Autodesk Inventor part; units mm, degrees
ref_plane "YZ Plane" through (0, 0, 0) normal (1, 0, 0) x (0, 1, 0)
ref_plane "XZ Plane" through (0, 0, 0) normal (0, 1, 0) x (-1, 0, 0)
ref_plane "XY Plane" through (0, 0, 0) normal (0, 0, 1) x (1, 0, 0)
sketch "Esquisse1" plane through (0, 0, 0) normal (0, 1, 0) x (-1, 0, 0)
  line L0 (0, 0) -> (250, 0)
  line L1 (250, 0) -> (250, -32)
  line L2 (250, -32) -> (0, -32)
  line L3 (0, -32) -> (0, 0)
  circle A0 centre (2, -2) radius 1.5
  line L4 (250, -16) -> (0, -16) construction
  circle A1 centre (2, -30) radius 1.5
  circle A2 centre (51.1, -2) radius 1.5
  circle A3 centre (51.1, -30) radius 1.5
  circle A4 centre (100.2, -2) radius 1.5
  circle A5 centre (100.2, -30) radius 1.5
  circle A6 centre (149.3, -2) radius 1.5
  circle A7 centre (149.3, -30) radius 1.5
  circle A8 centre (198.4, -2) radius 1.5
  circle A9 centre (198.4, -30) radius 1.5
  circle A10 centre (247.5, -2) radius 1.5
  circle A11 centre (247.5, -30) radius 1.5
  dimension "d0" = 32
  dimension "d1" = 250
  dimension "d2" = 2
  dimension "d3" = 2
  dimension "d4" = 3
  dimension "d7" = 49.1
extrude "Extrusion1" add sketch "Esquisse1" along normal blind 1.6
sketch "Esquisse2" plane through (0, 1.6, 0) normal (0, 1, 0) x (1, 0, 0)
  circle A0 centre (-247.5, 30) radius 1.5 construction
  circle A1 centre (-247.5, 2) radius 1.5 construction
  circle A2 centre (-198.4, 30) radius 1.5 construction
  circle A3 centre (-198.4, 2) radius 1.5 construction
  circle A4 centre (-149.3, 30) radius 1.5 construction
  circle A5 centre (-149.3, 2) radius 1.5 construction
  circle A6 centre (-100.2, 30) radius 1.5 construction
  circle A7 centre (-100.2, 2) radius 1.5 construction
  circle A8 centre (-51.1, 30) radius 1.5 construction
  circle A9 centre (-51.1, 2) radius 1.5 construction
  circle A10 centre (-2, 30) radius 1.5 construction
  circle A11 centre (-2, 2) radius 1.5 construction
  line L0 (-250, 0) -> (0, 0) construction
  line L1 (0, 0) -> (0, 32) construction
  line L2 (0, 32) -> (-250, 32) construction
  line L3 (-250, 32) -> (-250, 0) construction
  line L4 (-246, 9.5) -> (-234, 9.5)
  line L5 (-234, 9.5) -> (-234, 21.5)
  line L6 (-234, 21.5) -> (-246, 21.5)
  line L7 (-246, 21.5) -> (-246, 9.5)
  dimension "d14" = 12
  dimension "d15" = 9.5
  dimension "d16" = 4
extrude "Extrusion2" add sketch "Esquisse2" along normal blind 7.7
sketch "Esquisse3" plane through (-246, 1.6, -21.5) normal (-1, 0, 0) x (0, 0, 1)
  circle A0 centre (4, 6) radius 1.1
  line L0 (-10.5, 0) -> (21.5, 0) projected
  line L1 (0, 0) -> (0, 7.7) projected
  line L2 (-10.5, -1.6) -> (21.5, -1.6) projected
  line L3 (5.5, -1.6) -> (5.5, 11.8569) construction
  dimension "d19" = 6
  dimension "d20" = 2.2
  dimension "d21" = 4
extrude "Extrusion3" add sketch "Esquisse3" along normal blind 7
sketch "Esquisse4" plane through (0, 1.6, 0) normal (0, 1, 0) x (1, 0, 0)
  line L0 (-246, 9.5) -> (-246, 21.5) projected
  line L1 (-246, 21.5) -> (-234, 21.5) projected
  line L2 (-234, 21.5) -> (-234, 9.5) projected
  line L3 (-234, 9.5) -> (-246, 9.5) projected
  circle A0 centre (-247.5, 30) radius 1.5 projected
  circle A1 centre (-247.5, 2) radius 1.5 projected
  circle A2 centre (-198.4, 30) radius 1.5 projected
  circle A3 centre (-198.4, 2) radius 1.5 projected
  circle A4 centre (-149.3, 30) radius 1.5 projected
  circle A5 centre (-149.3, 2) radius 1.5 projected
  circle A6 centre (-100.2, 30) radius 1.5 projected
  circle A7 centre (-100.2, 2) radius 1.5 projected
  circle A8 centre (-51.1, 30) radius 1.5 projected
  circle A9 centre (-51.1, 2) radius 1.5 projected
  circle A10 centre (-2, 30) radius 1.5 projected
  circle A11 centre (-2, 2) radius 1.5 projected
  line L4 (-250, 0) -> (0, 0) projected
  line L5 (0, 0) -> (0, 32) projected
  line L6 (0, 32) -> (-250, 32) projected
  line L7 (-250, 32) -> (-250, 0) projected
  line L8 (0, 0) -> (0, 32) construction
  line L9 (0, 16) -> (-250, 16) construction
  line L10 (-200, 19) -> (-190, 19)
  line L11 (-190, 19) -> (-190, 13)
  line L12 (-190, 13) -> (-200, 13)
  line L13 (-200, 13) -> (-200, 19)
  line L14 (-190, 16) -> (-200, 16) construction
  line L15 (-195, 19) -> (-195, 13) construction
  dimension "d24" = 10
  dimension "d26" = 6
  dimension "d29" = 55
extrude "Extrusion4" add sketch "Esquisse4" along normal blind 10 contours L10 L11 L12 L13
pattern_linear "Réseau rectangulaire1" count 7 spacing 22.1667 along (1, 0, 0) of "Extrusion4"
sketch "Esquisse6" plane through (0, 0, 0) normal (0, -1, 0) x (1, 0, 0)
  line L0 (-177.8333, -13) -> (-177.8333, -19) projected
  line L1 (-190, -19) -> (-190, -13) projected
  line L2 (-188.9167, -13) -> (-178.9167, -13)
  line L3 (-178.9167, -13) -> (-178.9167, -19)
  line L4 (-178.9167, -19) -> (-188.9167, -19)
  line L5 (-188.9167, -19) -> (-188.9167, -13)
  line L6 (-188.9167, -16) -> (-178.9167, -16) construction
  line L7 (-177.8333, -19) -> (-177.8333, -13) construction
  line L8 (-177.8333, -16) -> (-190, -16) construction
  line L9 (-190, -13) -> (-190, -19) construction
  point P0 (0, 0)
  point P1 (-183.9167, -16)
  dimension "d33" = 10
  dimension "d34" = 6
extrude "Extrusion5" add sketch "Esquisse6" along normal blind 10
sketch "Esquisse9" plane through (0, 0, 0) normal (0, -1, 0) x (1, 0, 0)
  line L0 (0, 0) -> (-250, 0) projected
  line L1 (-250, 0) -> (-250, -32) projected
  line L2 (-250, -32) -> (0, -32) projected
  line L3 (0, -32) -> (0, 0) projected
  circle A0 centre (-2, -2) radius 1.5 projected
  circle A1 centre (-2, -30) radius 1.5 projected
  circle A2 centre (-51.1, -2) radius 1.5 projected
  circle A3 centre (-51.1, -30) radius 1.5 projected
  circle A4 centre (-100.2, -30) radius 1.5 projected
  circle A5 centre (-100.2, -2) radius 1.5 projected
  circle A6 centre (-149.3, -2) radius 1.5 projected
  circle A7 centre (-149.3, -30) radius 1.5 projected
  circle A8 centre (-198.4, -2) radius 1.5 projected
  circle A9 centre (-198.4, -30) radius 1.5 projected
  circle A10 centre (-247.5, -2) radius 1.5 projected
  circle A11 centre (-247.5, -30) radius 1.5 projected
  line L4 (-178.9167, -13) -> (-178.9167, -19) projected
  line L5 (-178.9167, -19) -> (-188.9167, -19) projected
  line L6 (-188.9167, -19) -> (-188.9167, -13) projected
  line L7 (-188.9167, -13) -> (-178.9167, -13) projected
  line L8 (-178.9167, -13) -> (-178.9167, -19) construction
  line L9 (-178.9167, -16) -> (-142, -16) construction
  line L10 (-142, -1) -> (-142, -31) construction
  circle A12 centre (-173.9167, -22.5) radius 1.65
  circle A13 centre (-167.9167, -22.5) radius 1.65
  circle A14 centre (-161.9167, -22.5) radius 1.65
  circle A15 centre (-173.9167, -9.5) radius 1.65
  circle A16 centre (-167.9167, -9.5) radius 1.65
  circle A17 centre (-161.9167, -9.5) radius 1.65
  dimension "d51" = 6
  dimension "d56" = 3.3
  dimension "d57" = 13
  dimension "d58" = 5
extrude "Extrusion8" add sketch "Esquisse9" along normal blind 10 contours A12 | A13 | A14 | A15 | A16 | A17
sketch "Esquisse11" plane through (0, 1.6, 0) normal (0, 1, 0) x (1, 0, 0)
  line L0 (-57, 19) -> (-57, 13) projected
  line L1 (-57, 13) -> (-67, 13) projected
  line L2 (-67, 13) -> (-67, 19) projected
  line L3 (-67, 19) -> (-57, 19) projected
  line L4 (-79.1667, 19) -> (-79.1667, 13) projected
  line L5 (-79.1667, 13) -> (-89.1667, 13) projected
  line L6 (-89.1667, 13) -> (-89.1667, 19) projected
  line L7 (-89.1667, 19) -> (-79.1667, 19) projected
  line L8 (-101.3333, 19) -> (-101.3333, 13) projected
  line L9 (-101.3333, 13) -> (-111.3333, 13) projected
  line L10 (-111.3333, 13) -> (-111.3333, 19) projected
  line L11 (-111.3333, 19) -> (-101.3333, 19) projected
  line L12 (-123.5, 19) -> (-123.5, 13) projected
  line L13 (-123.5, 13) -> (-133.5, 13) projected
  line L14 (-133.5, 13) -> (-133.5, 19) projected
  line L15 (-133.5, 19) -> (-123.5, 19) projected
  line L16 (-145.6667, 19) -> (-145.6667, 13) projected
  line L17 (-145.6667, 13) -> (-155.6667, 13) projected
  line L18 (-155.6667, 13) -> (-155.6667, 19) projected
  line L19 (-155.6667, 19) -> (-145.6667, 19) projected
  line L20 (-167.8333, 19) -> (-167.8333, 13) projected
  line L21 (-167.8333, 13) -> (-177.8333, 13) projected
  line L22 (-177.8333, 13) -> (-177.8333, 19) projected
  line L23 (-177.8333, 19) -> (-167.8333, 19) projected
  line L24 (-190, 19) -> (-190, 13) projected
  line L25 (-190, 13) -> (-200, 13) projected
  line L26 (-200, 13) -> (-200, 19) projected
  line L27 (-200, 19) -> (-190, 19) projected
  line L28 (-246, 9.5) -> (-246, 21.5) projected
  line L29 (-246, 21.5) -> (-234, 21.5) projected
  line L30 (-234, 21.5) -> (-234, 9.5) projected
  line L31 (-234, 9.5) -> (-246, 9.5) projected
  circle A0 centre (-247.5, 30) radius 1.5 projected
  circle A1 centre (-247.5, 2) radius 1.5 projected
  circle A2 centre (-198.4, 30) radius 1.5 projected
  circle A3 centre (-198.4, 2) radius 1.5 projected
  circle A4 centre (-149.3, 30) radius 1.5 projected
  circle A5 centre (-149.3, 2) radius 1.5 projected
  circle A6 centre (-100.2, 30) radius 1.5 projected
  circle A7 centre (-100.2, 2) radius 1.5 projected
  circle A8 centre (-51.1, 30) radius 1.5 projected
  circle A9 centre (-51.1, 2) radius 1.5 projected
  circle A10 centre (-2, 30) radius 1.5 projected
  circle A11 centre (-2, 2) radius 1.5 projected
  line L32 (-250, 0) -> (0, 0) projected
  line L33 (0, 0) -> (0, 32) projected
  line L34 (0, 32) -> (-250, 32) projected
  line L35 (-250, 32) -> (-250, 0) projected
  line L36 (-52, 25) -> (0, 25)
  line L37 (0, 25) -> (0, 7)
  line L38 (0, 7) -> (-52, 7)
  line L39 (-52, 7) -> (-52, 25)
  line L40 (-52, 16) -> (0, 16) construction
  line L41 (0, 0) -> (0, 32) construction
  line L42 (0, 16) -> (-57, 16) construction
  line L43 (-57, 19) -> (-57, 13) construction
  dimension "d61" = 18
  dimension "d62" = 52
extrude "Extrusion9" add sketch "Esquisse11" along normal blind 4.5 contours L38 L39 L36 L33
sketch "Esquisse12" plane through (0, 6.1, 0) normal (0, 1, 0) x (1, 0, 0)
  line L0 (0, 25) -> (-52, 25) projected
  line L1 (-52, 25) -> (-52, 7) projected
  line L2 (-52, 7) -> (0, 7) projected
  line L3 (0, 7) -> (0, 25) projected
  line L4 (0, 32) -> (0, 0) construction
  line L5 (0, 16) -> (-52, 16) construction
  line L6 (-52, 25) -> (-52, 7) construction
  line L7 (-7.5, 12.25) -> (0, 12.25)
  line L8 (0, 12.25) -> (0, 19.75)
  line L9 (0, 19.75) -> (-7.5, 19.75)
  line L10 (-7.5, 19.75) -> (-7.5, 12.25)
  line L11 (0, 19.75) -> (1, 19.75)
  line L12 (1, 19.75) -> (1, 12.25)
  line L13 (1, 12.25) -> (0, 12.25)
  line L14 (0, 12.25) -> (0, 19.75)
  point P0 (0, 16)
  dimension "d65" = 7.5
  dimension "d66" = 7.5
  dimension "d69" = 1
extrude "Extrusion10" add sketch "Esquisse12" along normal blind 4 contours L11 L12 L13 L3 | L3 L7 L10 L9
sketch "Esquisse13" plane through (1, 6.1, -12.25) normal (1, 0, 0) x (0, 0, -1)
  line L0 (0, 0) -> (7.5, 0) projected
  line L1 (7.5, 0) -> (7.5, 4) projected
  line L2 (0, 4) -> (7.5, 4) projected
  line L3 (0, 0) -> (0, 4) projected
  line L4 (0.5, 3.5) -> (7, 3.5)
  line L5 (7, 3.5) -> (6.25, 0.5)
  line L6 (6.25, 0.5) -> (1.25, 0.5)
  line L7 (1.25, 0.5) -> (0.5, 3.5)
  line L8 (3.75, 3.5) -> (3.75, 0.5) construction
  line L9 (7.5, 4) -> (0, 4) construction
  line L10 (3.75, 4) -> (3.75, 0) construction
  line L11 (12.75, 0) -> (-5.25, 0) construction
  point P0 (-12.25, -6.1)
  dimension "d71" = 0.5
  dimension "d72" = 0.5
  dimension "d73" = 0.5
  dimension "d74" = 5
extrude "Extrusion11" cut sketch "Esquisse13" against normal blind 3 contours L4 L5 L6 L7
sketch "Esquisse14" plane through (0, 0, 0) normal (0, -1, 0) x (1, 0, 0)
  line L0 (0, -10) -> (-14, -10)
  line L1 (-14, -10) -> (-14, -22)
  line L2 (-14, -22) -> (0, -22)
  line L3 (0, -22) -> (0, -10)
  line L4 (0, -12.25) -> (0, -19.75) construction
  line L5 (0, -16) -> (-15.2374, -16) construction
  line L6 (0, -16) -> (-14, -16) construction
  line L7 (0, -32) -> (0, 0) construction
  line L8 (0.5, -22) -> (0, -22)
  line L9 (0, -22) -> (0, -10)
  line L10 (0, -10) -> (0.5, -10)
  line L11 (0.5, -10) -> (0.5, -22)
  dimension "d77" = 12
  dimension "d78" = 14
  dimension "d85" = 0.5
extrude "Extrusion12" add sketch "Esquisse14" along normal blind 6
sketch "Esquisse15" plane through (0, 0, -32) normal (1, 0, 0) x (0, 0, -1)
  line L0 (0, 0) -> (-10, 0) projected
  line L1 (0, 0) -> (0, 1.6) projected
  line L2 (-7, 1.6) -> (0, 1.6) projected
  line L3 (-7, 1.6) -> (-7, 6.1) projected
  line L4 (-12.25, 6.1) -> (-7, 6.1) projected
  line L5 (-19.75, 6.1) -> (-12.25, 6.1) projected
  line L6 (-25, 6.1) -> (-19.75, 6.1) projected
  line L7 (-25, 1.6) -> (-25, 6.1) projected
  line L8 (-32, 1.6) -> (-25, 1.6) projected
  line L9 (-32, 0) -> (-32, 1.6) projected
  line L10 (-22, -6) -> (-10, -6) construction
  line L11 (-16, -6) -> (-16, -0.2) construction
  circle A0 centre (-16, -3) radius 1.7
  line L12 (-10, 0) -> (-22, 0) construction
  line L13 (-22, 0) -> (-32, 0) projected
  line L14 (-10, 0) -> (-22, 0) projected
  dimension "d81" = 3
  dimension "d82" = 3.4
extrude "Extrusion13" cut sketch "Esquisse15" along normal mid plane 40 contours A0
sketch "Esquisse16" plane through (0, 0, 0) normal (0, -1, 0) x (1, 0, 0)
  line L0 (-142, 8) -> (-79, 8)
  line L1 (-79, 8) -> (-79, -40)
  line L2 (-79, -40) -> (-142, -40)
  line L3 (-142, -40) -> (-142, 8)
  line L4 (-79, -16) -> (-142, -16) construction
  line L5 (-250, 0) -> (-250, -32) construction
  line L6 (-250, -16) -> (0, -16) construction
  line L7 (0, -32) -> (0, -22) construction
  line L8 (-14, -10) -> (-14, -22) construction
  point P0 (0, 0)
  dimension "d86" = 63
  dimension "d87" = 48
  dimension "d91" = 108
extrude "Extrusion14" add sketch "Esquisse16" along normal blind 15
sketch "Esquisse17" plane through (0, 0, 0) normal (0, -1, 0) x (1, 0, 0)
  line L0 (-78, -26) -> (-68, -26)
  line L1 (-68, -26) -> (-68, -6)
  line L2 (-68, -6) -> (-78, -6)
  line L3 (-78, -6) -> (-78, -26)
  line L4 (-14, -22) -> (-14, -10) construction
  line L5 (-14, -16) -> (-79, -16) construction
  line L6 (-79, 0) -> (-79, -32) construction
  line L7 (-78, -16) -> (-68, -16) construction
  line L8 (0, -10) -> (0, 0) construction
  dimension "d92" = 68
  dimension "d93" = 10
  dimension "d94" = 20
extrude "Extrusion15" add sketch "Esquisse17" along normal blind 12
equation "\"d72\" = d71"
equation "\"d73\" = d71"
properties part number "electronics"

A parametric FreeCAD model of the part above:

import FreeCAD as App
import Part
import Sketcher

V = App.Vector
Q = App.Units.Quantity

doc = App.newDocument("Part")
params = doc.addObject("Spreadsheet::Sheet", "Params")
for row, (alias, value) in enumerate([
    ("sketch1_diameter", "3 mm"),
    ("sketch1_width", "250 mm"),
    ("sketch1_height", "32 mm"),
    ("pad1_length", "1.6 mm"),
    ("sketch2_width", "12 mm"),
    ("pad2_length", "7.7 mm"),
    ("sketch3_diameter", "2.2 mm"),
    ("pad3_length", "7 mm"),
    ("sketch4_width", "10 mm"),
    ("sketch4_height", "6 mm"),
    ("pad4_length", "10 mm"),
    ("linearpattern_pitch", "22.1667 mm"),
    ("sketch5_width", "10 mm"),
    ("sketch5_height", "6 mm"),
    ("pad5_length", "10 mm"),
    ("sketch6_diameter", "3.3 mm"),
    ("pad6_length", "10 mm"),
    ("sketch7_width", "52 mm"),
    ("sketch7_height", "18 mm"),
    ("pad7_length", "4.5 mm"),
    ("sketch8_height", "7.5 mm"),
    ("pad8_length", "4 mm"),
    ("sketch9_height", "5 mm"),
    ("sketch9_height2", "6.5 mm"),
    ("pocket1_length", "3 mm"),
    ("sketch10_height", "12 mm"),
    ("pad9_length", "6 mm"),
    ("sketch11_diameter", "3.4 mm"),
    ("pocket2_length", "40 mm"),
    ("sketch12_width", "63 mm"),
    ("sketch12_height", "48 mm"),
    ("pad10_length", "15 mm"),
    ("sketch13_width", "10 mm"),
    ("sketch13_height", "20 mm"),
    ("pad11_length", "12 mm"),
], start=1):
    params.set(f"A{row}", alias)
    params.set(f"B{row}", "=" + value)
    params.setAlias(f"B{row}", alias)

body = doc.addObject("PartDesign::Body", "Body")

sketch1 = body.newObject("Sketcher::SketchObject", "Sketch")
sketch1.AttachmentSupport = (doc.getObject("XZ_Plane"), [""])
sketch1.MapMode = "FlatFace"
sketch1.addGeometry([
    Part.LineSegment(V(-250, 0, 0), V(0, 0, 0)),
    Part.LineSegment(V(0, 0, 0), V(0, -32, 0)),
    Part.LineSegment(V(0, -32, 0), V(-250, -32, 0)),
    Part.LineSegment(V(-250, -32, 0), V(-250, 0, 0)),
    Part.Circle(V(-2, -30, 0), V(0, 0, 1), 1.5),
    Part.Circle(V(-51.1, -30, 0), V(0, 0, 1), 1.5),
    Part.Circle(V(-100.2, -30, 0), V(0, 0, 1), 1.5),
    Part.Circle(V(-149.3, -30, 0), V(0, 0, 1), 1.5),
    Part.Circle(V(-198.4, -30, 0), V(0, 0, 1), 1.5),
    Part.Circle(V(-247.5, -30, 0), V(0, 0, 1), 1.5),
    Part.Circle(V(-2, -2, 0), V(0, 0, 1), 1.5),
    Part.Circle(V(-51.1, -2, 0), V(0, 0, 1), 1.5),
    Part.Circle(V(-100.2, -2, 0), V(0, 0, 1), 1.5),
    Part.Circle(V(-149.3, -2, 0), V(0, 0, 1), 1.5),
    Part.Circle(V(-198.4, -2, 0), V(0, 0, 1), 1.5),
    Part.Circle(V(-247.5, -2, 0), V(0, 0, 1), 1.5),
], False)
sketch1.addConstraint([
    Sketcher.Constraint("Coincident", 0, 2, 1, 1),
    Sketcher.Constraint("Coincident", 1, 2, 2, 1),
    Sketcher.Constraint("Coincident", 2, 2, 3, 1),
    Sketcher.Constraint("Coincident", 3, 2, 0, 1),
    Sketcher.Constraint("Horizontal", 0),
    Sketcher.Constraint("Vertical", 1),
    Sketcher.Constraint("Horizontal", 2),
    Sketcher.Constraint("Vertical", 3),
    Sketcher.Constraint("Coincident", 0, 2, -1, 1),
    Sketcher.Constraint("Equal", 4, 5),
    Sketcher.Constraint("Equal", 5, 6),
    Sketcher.Constraint("Equal", 6, 7),
    Sketcher.Constraint("Equal", 7, 8),
    Sketcher.Constraint("Equal", 8, 9),
    Sketcher.Constraint("Equal", 9, 10),
    Sketcher.Constraint("Equal", 10, 11),
    Sketcher.Constraint("Equal", 11, 12),
    Sketcher.Constraint("Equal", 12, 13),
    Sketcher.Constraint("Equal", 13, 14),
    Sketcher.Constraint("Equal", 14, 15),
    Sketcher.Constraint("Horizontal", 4, 3, 5, 3),
    Sketcher.Constraint("Horizontal", 5, 3, 6, 3),
    Sketcher.Constraint("Horizontal", 6, 3, 7, 3),
    Sketcher.Constraint("Horizontal", 7, 3, 8, 3),
    Sketcher.Constraint("Horizontal", 8, 3, 9, 3),
    Sketcher.Constraint("Horizontal", 10, 3, 11, 3),
    Sketcher.Constraint("Horizontal", 11, 3, 12, 3),
    Sketcher.Constraint("Horizontal", 12, 3, 13, 3),
    Sketcher.Constraint("Horizontal", 13, 3, 14, 3),
    Sketcher.Constraint("Horizontal", 14, 3, 15, 3),
    Sketcher.Constraint("Vertical", 4, 3, 10, 3),
    Sketcher.Constraint("Vertical", 5, 3, 11, 3),
    Sketcher.Constraint("Vertical", 6, 3, 12, 3),
    Sketcher.Constraint("Vertical", 7, 3, 13, 3),
    Sketcher.Constraint("Vertical", 8, 3, 14, 3),
    Sketcher.Constraint("Vertical", 9, 3, 15, 3),
    Sketcher.Constraint("Diameter", 4, Q("3 mm")),
    Sketcher.Constraint("DistanceX", 0, 1, 0, 2, Q("250 mm")),
    Sketcher.Constraint("DistanceY", 1, 2, 1, 1, Q("32 mm")),
    Sketcher.Constraint("DistanceX", 4, 3, -1, 1, Q("2 mm")),
    Sketcher.Constraint("DistanceY", 10, 3, -1, 1, Q("2 mm")),
    Sketcher.Constraint("DistanceY", 1, 2, 4, 3, Q("2 mm")),
    Sketcher.Constraint("DistanceX", 5, 3, 4, 3, Q("49.1 mm")),
    Sketcher.Constraint("DistanceX", 6, 3, 5, 3, Q("49.1 mm")),
    Sketcher.Constraint("DistanceX", 7, 3, 6, 3, Q("49.1 mm")),
    Sketcher.Constraint("DistanceX", 8, 3, 7, 3, Q("49.1 mm")),
    Sketcher.Constraint("DistanceX", 9, 3, 8, 3, Q("49.1 mm")),
])
sketch1.setExpression("Constraints[36]", "Params.sketch1_diameter")
sketch1.setExpression("Constraints[37]", "Params.sketch1_width")
sketch1.setExpression("Constraints[38]", "Params.sketch1_height")
pad1 = body.newObject("PartDesign::Pad", "Pad")
pad1.Profile = sketch1
pad1.setExpression("Length", "Params.pad1_length")
pad1.Reversed = True

sketch2 = body.newObject("Sketcher::SketchObject", "Sketch001")
sketch2.AttachmentSupport = (doc.getObject("XZ_Plane"), [""])
sketch2.MapMode = "FlatFace"
sketch2.AttachmentOffset = App.Placement(V(0, 0, -1.6), App.Rotation())
sketch2.addGeometry([
    Part.LineSegment(V(-246, -22, 0), V(-246, -10, 0)),
    Part.LineSegment(V(-246, -10, 0), V(-234, -10, 0)),
    Part.LineSegment(V(-234, -10, 0), V(-234, -22, 0)),
    Part.LineSegment(V(-234, -22, 0), V(-246, -22, 0)),
], False)
sketch2.addConstraint([
    Sketcher.Constraint("Coincident", 0, 2, 1, 1),
    Sketcher.Constraint("Coincident", 1, 2, 2, 1),
    Sketcher.Constraint("Coincident", 2, 2, 3, 1),
    Sketcher.Constraint("Coincident", 3, 2, 0, 1),
    Sketcher.Constraint("Vertical", 0),
    Sketcher.Constraint("Horizontal", 1),
    Sketcher.Constraint("Vertical", 2),
    Sketcher.Constraint("Horizontal", 3),
    Sketcher.Constraint("Equal", 3, 0),
    Sketcher.Constraint("DistanceX", 1, 1, 1, 2, Q("12 mm")),
    Sketcher.Constraint("DistanceY", 0, 2, -1, 1, Q("9.5 mm")),
    Sketcher.Constraint("DistanceX", 0, 2, -1, 1, Q("246 mm")),
])
sketch2.setExpression("Constraints[9]", "Params.sketch2_width")
pad2 = body.newObject("PartDesign::Pad", "Pad001")
pad2.Profile = sketch2
pad2.setExpression("Length", "Params.pad2_length")
pad2.Reversed = True

sketch3 = body.newObject("Sketcher::SketchObject", "Sketch002")
sketch3.AttachmentSupport = (doc.getObject("YZ_Plane"), [""])
sketch3.MapMode = "FlatFace"
sketch3.AttachmentOffset = App.Placement(V(0, 0, -246), App.Rotation())
sketch3.addGeometry(Part.Circle(V(7.6, -17.5, 0), V(0, 0, 1), 1.1), False)
sketch3.addConstraint([
    Sketcher.Constraint("Diameter", 0, Q("2.2 mm")),
    Sketcher.Constraint("DistanceX", -1, 1, 0, 3, Q("7.6 mm")),
    Sketcher.Constraint("DistanceY", 0, 3, -1, 1, Q("17.5 mm")),
])
sketch3.setExpression("Constraints[0]", "Params.sketch3_diameter")
pad3 = body.newObject("PartDesign::Pad", "Pad002")
pad3.Profile = sketch3
pad3.setExpression("Length", "Params.pad3_length")
pad3.Reversed = True

sketch4 = body.newObject("Sketcher::SketchObject", "Sketch003")
sketch4.AttachmentSupport = (doc.getObject("XZ_Plane"), [""])
sketch4.MapMode = "FlatFace"
sketch4.AttachmentOffset = App.Placement(V(0, 0, -1.6), App.Rotation())
sketch4.addGeometry([
    Part.LineSegment(V(-190, -19, 0), V(-200, -19, 0)),
    Part.LineSegment(V(-200, -19, 0), V(-200, -13, 0)),
    Part.LineSegment(V(-200, -13, 0), V(-190, -13, 0)),
    Part.LineSegment(V(-190, -13, 0), V(-190, -19, 0)),
], False)
sketch4.addConstraint([
    Sketcher.Constraint("Coincident", 0, 2, 1, 1),
    Sketcher.Constraint("Coincident", 1, 2, 2, 1),
    Sketcher.Constraint("Coincident", 2, 2, 3, 1),
    Sketcher.Constraint("Coincident", 3, 2, 0, 1),
    Sketcher.Constraint("Horizontal", 0),
    Sketcher.Constraint("Vertical", 1),
    Sketcher.Constraint("Horizontal", 2),
    Sketcher.Constraint("Vertical", 3),
    Sketcher.Constraint("DistanceX", 0, 2, 0, 1, Q("10 mm")),
    Sketcher.Constraint("DistanceY", 1, 1, 1, 2, Q("6 mm")),
    Sketcher.Constraint("DistanceX", 0, 2, -1, 1, Q("200 mm")),
    Sketcher.Constraint("DistanceY", 0, 2, -1, 1, Q("19 mm")),
])
sketch4.setExpression("Constraints[8]", "Params.sketch4_width")
sketch4.setExpression("Constraints[9]", "Params.sketch4_height")
pad4 = body.newObject("PartDesign::Pad", "Pad003")
pad4.Profile = sketch4
pad4.setExpression("Length", "Params.pad4_length")
pad4.Reversed = True
doc.recompute()

linearpattern = body.newObject("PartDesign::LinearPattern", "LinearPattern")
linearpattern.Originals = [pad4]
linearpattern.Direction = (doc.getObject("X_Axis"), [""])
linearpattern.Mode = "offset"
linearpattern.setExpression("Offset", "Params.linearpattern_pitch")
linearpattern.Occurrences = 7
body.Tip = linearpattern

sketch5 = body.newObject("Sketcher::SketchObject", "Sketch004")
sketch5.AttachmentSupport = (doc.getObject("XZ_Plane"), [""])
sketch5.MapMode = "FlatFace"
sketch5.addGeometry([
    Part.LineSegment(V(-179, -13, 0), V(-189, -13, 0)),
    Part.LineSegment(V(-189, -13, 0), V(-189, -19, 0)),
    Part.LineSegment(V(-189, -19, 0), V(-179, -19, 0)),
    Part.LineSegment(V(-179, -19, 0), V(-179, -13, 0)),
], False)
sketch5.addConstraint([
    Sketcher.Constraint("Coincident", 0, 2, 1, 1),
    Sketcher.Constraint("Coincident", 1, 2, 2, 1),
    Sketcher.Constraint("Coincident", 2, 2, 3, 1),
    Sketcher.Constraint("Coincident", 3, 2, 0, 1),
    Sketcher.Constraint("Horizontal", 0),
    Sketcher.Constraint("Vertical", 1),
    Sketcher.Constraint("Horizontal", 2),
    Sketcher.Constraint("Vertical", 3),
    Sketcher.Constraint("DistanceX", 0, 2, 0, 1, Q("10 mm")),
    Sketcher.Constraint("DistanceY", 1, 2, 1, 1, Q("6 mm")),
    Sketcher.Constraint("DistanceY", 0, 2, -1, 1, Q("13 mm")),
    Sketcher.Constraint("DistanceX", 0, 2, -1, 1, Q("188.9167 mm")),
])
sketch5.setExpression("Constraints[8]", "Params.sketch5_width")
sketch5.setExpression("Constraints[9]", "Params.sketch5_height")
pad5 = body.newObject("PartDesign::Pad", "Pad004")
pad5.Profile = sketch5
pad5.setExpression("Length", "Params.pad5_length")

sketch6 = body.newObject("Sketcher::SketchObject", "Sketch005")
sketch6.AttachmentSupport = (doc.getObject("XZ_Plane"), [""])
sketch6.MapMode = "FlatFace"
sketch6.addGeometry([
    Part.Circle(V(-173.9, -22.5, 0), V(0, 0, 1), 1.6),
    Part.Circle(V(-167.9, -22.5, 0), V(0, 0, 1), 1.6),
    Part.Circle(V(-161.9, -22.5, 0), V(0, 0, 1), 1.6),
    Part.Circle(V(-173.9, -9.5, 0), V(0, 0, 1), 1.6),
    Part.Circle(V(-167.9, -9.5, 0), V(0, 0, 1), 1.6),
    Part.Circle(V(-161.9, -9.5, 0), V(0, 0, 1), 1.6),
], False)
sketch6.addConstraint([
    Sketcher.Constraint("Equal", 0, 1),
    Sketcher.Constraint("Equal", 1, 2),
    Sketcher.Constraint("Equal", 2, 3),
    Sketcher.Constraint("Equal", 3, 4),
    Sketcher.Constraint("Equal", 4, 5),
    Sketcher.Constraint("Horizontal", 0, 3, 1, 3),
    Sketcher.Constraint("Horizontal", 1, 3, 2, 3),
    Sketcher.Constraint("Horizontal", 3, 3, 4, 3),
    Sketcher.Constraint("Horizontal", 4, 3, 5, 3),
    Sketcher.Constraint("Vertical", 0, 3, 3, 3),
    Sketcher.Constraint("Vertical", 1, 3, 4, 3),
    Sketcher.Constraint("Vertical", 2, 3, 5, 3),
    Sketcher.Constraint("Diameter", 0, Q("3.3 mm")),
    Sketcher.Constraint("DistanceX", 0, 3, 1, 3, Q("6 mm")),
    Sketcher.Constraint("DistanceX", 1, 3, 2, 3, Q("6 mm")),
    Sketcher.Constraint("DistanceY", 0, 3, 3, 3, Q("13 mm")),
    Sketcher.Constraint("DistanceY", 0, 3, -1, 1, Q("22.5 mm")),
    Sketcher.Constraint("DistanceX", 0, 3, -1, 1, Q("173.9167 mm")),
])
sketch6.setExpression("Constraints[12]", "Params.sketch6_diameter")
pad6 = body.newObject("PartDesign::Pad", "Pad005")
pad6.Profile = sketch6
pad6.setExpression("Length", "Params.pad6_length")

sketch7 = body.newObject("Sketcher::SketchObject", "Sketch006")
sketch7.AttachmentSupport = (doc.getObject("XZ_Plane"), [""])
sketch7.MapMode = "FlatFace"
sketch7.AttachmentOffset = App.Placement(V(0, 0, -1.6), App.Rotation())
sketch7.addGeometry([
    Part.LineSegment(V(-52, -7, 0), V(0, -7, 0)),
    Part.LineSegment(V(0, -7, 0), V(0, -25, 0)),
    Part.LineSegment(V(0, -25, 0), V(-52, -25, 0)),
    Part.LineSegment(V(-52, -25, 0), V(-52, -7, 0)),
], False)
sketch7.addConstraint([
    Sketcher.Constraint("Coincident", 0, 2, 1, 1),
    Sketcher.Constraint("Coincident", 1, 2, 2, 1),
    Sketcher.Constraint("Coincident", 2, 2, 3, 1),
    Sketcher.Constraint("Coincident", 3, 2, 0, 1),
    Sketcher.Constraint("Horizontal", 0),
    Sketcher.Constraint("Vertical", 1),
    Sketcher.Constraint("Horizontal", 2),
    Sketcher.Constraint("Vertical", 3),
    Sketcher.Constraint("PointOnObject", 0, 2, -2),
    Sketcher.Constraint("DistanceX", 0, 1, 0, 2, Q("52 mm")),
    Sketcher.Constraint("DistanceY", 1, 2, 1, 1, Q("18 mm")),
    Sketcher.Constraint("DistanceY", 0, 2, -1, 1, Q("7 mm")),
])
sketch7.setExpression("Constraints[9]", "Params.sketch7_width")
sketch7.setExpression("Constraints[10]", "Params.sketch7_height")
pad7 = body.newObject("PartDesign::Pad", "Pad006")
pad7.Profile = sketch7
pad7.setExpression("Length", "Params.pad7_length")
pad7.Reversed = True

sketch8 = body.newObject("Sketcher::SketchObject", "Sketch007")
sketch8.AttachmentSupport = (doc.getObject("XZ_Plane"), [""])
sketch8.MapMode = "FlatFace"
sketch8.AttachmentOffset = App.Placement(V(0, 0, -6.1), App.Rotation())
sketch8.addGeometry([
    Part.LineSegment(V(1, -20, 0), V(-8, -20, 0)),
    Part.LineSegment(V(-8, -20, 0), V(-8, -12, 0)),
    Part.LineSegment(V(-8, -12, 0), V(1, -12, 0)),
    Part.LineSegment(V(1, -12, 0), V(1, -20, 0)),
], False)
sketch8.addConstraint([
    Sketcher.Constraint("Coincident", 0, 2, 1, 1),
    Sketcher.Constraint("Coincident", 1, 2, 2, 1),
    Sketcher.Constraint("Coincident", 2, 2, 3, 1),
    Sketcher.Constraint("Coincident", 3, 2, 0, 1),
    Sketcher.Constraint("Horizontal", 0),
    Sketcher.Constraint("Vertical", 1),
    Sketcher.Constraint("Horizontal", 2),
    Sketcher.Constraint("Vertical", 3),
    Sketcher.Constraint("DistanceY", 1, 1, 1, 2, Q("7.5 mm")),
    Sketcher.Constraint("DistanceX", -1, 1, 2, 2, Q("1 mm")),
    Sketcher.Constraint("DistanceX", 0, 2, -1, 1, Q("7.5 mm")),
    Sketcher.Constraint("DistanceY", 0, 2, -1, 1, Q("19.75 mm")),
])
sketch8.setExpression("Constraints[8]", "Params.sketch8_height")
pad8 = body.newObject("PartDesign::Pad", "Pad007")
pad8.Profile = sketch8
pad8.setExpression("Length", "Params.pad8_length")
pad8.Reversed = True

sketch9 = body.newObject("Sketcher::SketchObject", "Sketch008")
sketch9.AttachmentSupport = (doc.getObject("YZ_Plane"), [""])
sketch9.MapMode = "FlatFace"
sketch9.AttachmentOffset = App.Placement(V(0, 0, 1), App.Rotation())
sketch9.addGeometry([
    Part.LineSegment(V(9.6, -19.2, 0), V(9.6, -12.8, 0)),
    Part.LineSegment(V(9.6, -12.8, 0), V(6.6, -13.5, 0)),
    Part.LineSegment(V(6.6, -13.5, 0), V(6.6, -18.5, 0)),
    Part.LineSegment(V(6.6, -18.5, 0), V(9.6, -19.2, 0)),
], False)
sketch9.addConstraint([
    Sketcher.Constraint("Coincident", 0, 2, 1, 1),
    Sketcher.Constraint("Coincident", 1, 2, 2, 1),
    Sketcher.Constraint("Coincident", 2, 2, 3, 1),
    Sketcher.Constraint("Coincident", 3, 2, 0, 1),
    Sketcher.Constraint("Vertical", 0),
    Sketcher.Constraint("Vertical", 2),
    Sketcher.Constraint("Equal", 1, 3),
    Sketcher.Constraint("DistanceY", 2, 2, 2, 1, Q("5 mm")),
    Sketcher.Constraint("DistanceY", 0, 1, 0, 2, Q("6.5 mm")),
    Sketcher.Constraint("DistanceX", 1, 2, 0, 2, Q("3 mm")),
    Sketcher.Constraint("DistanceX", -1, 1, 0, 2, Q("9.6 mm")),
    Sketcher.Constraint("DistanceY", 1, 2, -1, 1, Q("13.5 mm")),
])
sketch9.setExpression("Constraints[7]", "Params.sketch9_height")
sketch9.setExpression("Constraints[8]", "Params.sketch9_height2")
pocket1 = body.newObject("PartDesign::Pocket", "Pocket")
pocket1.Profile = sketch9
pocket1.setExpression("Length", "Params.pocket1_length")

sketch10 = body.newObject("Sketcher::SketchObject", "Sketch009")
sketch10.AttachmentSupport = (doc.getObject("XZ_Plane"), [""])
sketch10.MapMode = "FlatFace"
sketch10.addGeometry([
    Part.LineSegment(V(-14, -22, 0), V(0, -22, 0)),
    Part.LineSegment(V(0, -22, 0), V(0, -10, 0)),
    Part.LineSegment(V(0, -10, 0), V(-14, -10, 0)),
    Part.LineSegment(V(-14, -10, 0), V(-14, -22, 0)),
], False)
sketch10.addConstraint([
    Sketcher.Constraint("Coincident", 0, 2, 1, 1),
    Sketcher.Constraint("Coincident", 1, 2, 2, 1),
    Sketcher.Constraint("Coincident", 2, 2, 3, 1),
    Sketcher.Constraint("Coincident", 3, 2, 0, 1),
    Sketcher.Constraint("Horizontal", 0),
    Sketcher.Constraint("Vertical", 1),
    Sketcher.Constraint("Horizontal", 2),
    Sketcher.Constraint("Vertical", 3),
    Sketcher.Constraint("DistanceY", 1, 1, 1, 2, Q("12 mm")),
    Sketcher.Constraint("DistanceX", 2, 2, -1, 1, Q("14 mm")),
    Sketcher.Constraint("DistanceX", -1, 1, 0, 2, Q("0.5 mm")),
    Sketcher.Constraint("DistanceY", 0, 2, -1, 1, Q("22 mm")),
])
sketch10.setExpression("Constraints[8]", "Params.sketch10_height")
pad9 = body.newObject("PartDesign::Pad", "Pad008")
pad9.Profile = sketch10
pad9.setExpression("Length", "Params.pad9_length")

sketch11 = body.newObject("Sketcher::SketchObject", "Sketch010")
sketch11.AttachmentSupport = (doc.getObject("YZ_Plane"), [""])
sketch11.MapMode = "FlatFace"
sketch11.addGeometry(Part.Circle(V(-3, -16, 0), V(0, 0, 1), 1.7), False)
sketch11.addConstraint([
    Sketcher.Constraint("Diameter", 0, Q("3.4 mm")),
    Sketcher.Constraint("DistanceX", 0, 3, -1, 1, Q("3 mm")),
    Sketcher.Constraint("DistanceY", 0, 3, -1, 1, Q("16 mm")),
])
sketch11.setExpression("Constraints[0]", "Params.sketch11_diameter")
pocket2 = body.newObject("PartDesign::Pocket", "Pocket001")
pocket2.Profile = sketch11
pocket2.setExpression("Length", "Params.pocket2_length")
pocket2.Midplane = True

sketch12 = body.newObject("Sketcher::SketchObject", "Sketch011")
sketch12.AttachmentSupport = (doc.getObject("XZ_Plane"), [""])
sketch12.MapMode = "FlatFace"
sketch12.addGeometry([
    Part.LineSegment(V(-79, 8, 0), V(-142, 8, 0)),
    Part.LineSegment(V(-142, 8, 0), V(-142, -40, 0)),
    Part.LineSegment(V(-142, -40, 0), V(-79, -40, 0)),
    Part.LineSegment(V(-79, -40, 0), V(-79, 8, 0)),
], False)
sketch12.addConstraint([
    Sketcher.Constraint("Coincident", 0, 2, 1, 1),
    Sketcher.Constraint("Coincident", 1, 2, 2, 1),
    Sketcher.Constraint("Coincident", 2, 2, 3, 1),
    Sketcher.Constraint("Coincident", 3, 2, 0, 1),
    Sketcher.Constraint("Horizontal", 0),
    Sketcher.Constraint("Vertical", 1),
    Sketcher.Constraint("Horizontal", 2),
    Sketcher.Constraint("Vertical", 3),
    Sketcher.Constraint("DistanceX", 0, 2, 0, 1, Q("63 mm")),
    Sketcher.Constraint("DistanceY", 1, 2, 1, 1, Q("48 mm")),
    Sketcher.Constraint("DistanceX", 0, 2, -1, 1, Q("142 mm")),
    Sketcher.Constraint("DistanceY", -1, 1, 0, 2, Q("8 mm")),
])
sketch12.setExpression("Constraints[8]", "Params.sketch12_width")
sketch12.setExpression("Constraints[9]", "Params.sketch12_height")
pad10 = body.newObject("PartDesign::Pad", "Pad009")
pad10.Profile = sketch12
pad10.setExpression("Length", "Params.pad10_length")

sketch13 = body.newObject("Sketcher::SketchObject", "Sketch012")
sketch13.AttachmentSupport = (doc.getObject("XZ_Plane"), [""])
sketch13.MapMode = "FlatFace"
sketch13.addGeometry([
    Part.LineSegment(V(-78, -6, 0), V(-78, -26, 0)),
    Part.LineSegment(V(-78, -26, 0), V(-68, -26, 0)),
    Part.LineSegment(V(-68, -26, 0), V(-68, -6, 0)),
    Part.LineSegment(V(-68, -6, 0), V(-78, -6, 0)),
], False)
sketch13.addConstraint([
    Sketcher.Constraint("Coincident", 0, 2, 1, 1),
    Sketcher.Constraint("Coincident", 1, 2, 2, 1),
    Sketcher.Constraint("Coincident", 2, 2, 3, 1),
    Sketcher.Constraint("Coincident", 3, 2, 0, 1),
    Sketcher.Constraint("Vertical", 0),
    Sketcher.Constraint("Horizontal", 1),
    Sketcher.Constraint("Vertical", 2),
    Sketcher.Constraint("Horizontal", 3),
    Sketcher.Constraint("DistanceX", 1, 1, 1, 2, Q("10 mm")),
    Sketcher.Constraint("DistanceY", 0, 2, 0, 1, Q("20 mm")),
    Sketcher.Constraint("DistanceX", 1, 2, -1, 1, Q("68 mm")),
    Sketcher.Constraint("DistanceY", 0, 2, -1, 1, Q("26 mm")),
])
sketch13.setExpression("Constraints[8]", "Params.sketch13_width")
sketch13.setExpression("Constraints[9]", "Params.sketch13_height")
pad11 = body.newObject("PartDesign::Pad", "Pad010")
pad11.Profile = sketch13
pad11.setExpression("Length", "Params.pad11_length")

doc.recompute()
